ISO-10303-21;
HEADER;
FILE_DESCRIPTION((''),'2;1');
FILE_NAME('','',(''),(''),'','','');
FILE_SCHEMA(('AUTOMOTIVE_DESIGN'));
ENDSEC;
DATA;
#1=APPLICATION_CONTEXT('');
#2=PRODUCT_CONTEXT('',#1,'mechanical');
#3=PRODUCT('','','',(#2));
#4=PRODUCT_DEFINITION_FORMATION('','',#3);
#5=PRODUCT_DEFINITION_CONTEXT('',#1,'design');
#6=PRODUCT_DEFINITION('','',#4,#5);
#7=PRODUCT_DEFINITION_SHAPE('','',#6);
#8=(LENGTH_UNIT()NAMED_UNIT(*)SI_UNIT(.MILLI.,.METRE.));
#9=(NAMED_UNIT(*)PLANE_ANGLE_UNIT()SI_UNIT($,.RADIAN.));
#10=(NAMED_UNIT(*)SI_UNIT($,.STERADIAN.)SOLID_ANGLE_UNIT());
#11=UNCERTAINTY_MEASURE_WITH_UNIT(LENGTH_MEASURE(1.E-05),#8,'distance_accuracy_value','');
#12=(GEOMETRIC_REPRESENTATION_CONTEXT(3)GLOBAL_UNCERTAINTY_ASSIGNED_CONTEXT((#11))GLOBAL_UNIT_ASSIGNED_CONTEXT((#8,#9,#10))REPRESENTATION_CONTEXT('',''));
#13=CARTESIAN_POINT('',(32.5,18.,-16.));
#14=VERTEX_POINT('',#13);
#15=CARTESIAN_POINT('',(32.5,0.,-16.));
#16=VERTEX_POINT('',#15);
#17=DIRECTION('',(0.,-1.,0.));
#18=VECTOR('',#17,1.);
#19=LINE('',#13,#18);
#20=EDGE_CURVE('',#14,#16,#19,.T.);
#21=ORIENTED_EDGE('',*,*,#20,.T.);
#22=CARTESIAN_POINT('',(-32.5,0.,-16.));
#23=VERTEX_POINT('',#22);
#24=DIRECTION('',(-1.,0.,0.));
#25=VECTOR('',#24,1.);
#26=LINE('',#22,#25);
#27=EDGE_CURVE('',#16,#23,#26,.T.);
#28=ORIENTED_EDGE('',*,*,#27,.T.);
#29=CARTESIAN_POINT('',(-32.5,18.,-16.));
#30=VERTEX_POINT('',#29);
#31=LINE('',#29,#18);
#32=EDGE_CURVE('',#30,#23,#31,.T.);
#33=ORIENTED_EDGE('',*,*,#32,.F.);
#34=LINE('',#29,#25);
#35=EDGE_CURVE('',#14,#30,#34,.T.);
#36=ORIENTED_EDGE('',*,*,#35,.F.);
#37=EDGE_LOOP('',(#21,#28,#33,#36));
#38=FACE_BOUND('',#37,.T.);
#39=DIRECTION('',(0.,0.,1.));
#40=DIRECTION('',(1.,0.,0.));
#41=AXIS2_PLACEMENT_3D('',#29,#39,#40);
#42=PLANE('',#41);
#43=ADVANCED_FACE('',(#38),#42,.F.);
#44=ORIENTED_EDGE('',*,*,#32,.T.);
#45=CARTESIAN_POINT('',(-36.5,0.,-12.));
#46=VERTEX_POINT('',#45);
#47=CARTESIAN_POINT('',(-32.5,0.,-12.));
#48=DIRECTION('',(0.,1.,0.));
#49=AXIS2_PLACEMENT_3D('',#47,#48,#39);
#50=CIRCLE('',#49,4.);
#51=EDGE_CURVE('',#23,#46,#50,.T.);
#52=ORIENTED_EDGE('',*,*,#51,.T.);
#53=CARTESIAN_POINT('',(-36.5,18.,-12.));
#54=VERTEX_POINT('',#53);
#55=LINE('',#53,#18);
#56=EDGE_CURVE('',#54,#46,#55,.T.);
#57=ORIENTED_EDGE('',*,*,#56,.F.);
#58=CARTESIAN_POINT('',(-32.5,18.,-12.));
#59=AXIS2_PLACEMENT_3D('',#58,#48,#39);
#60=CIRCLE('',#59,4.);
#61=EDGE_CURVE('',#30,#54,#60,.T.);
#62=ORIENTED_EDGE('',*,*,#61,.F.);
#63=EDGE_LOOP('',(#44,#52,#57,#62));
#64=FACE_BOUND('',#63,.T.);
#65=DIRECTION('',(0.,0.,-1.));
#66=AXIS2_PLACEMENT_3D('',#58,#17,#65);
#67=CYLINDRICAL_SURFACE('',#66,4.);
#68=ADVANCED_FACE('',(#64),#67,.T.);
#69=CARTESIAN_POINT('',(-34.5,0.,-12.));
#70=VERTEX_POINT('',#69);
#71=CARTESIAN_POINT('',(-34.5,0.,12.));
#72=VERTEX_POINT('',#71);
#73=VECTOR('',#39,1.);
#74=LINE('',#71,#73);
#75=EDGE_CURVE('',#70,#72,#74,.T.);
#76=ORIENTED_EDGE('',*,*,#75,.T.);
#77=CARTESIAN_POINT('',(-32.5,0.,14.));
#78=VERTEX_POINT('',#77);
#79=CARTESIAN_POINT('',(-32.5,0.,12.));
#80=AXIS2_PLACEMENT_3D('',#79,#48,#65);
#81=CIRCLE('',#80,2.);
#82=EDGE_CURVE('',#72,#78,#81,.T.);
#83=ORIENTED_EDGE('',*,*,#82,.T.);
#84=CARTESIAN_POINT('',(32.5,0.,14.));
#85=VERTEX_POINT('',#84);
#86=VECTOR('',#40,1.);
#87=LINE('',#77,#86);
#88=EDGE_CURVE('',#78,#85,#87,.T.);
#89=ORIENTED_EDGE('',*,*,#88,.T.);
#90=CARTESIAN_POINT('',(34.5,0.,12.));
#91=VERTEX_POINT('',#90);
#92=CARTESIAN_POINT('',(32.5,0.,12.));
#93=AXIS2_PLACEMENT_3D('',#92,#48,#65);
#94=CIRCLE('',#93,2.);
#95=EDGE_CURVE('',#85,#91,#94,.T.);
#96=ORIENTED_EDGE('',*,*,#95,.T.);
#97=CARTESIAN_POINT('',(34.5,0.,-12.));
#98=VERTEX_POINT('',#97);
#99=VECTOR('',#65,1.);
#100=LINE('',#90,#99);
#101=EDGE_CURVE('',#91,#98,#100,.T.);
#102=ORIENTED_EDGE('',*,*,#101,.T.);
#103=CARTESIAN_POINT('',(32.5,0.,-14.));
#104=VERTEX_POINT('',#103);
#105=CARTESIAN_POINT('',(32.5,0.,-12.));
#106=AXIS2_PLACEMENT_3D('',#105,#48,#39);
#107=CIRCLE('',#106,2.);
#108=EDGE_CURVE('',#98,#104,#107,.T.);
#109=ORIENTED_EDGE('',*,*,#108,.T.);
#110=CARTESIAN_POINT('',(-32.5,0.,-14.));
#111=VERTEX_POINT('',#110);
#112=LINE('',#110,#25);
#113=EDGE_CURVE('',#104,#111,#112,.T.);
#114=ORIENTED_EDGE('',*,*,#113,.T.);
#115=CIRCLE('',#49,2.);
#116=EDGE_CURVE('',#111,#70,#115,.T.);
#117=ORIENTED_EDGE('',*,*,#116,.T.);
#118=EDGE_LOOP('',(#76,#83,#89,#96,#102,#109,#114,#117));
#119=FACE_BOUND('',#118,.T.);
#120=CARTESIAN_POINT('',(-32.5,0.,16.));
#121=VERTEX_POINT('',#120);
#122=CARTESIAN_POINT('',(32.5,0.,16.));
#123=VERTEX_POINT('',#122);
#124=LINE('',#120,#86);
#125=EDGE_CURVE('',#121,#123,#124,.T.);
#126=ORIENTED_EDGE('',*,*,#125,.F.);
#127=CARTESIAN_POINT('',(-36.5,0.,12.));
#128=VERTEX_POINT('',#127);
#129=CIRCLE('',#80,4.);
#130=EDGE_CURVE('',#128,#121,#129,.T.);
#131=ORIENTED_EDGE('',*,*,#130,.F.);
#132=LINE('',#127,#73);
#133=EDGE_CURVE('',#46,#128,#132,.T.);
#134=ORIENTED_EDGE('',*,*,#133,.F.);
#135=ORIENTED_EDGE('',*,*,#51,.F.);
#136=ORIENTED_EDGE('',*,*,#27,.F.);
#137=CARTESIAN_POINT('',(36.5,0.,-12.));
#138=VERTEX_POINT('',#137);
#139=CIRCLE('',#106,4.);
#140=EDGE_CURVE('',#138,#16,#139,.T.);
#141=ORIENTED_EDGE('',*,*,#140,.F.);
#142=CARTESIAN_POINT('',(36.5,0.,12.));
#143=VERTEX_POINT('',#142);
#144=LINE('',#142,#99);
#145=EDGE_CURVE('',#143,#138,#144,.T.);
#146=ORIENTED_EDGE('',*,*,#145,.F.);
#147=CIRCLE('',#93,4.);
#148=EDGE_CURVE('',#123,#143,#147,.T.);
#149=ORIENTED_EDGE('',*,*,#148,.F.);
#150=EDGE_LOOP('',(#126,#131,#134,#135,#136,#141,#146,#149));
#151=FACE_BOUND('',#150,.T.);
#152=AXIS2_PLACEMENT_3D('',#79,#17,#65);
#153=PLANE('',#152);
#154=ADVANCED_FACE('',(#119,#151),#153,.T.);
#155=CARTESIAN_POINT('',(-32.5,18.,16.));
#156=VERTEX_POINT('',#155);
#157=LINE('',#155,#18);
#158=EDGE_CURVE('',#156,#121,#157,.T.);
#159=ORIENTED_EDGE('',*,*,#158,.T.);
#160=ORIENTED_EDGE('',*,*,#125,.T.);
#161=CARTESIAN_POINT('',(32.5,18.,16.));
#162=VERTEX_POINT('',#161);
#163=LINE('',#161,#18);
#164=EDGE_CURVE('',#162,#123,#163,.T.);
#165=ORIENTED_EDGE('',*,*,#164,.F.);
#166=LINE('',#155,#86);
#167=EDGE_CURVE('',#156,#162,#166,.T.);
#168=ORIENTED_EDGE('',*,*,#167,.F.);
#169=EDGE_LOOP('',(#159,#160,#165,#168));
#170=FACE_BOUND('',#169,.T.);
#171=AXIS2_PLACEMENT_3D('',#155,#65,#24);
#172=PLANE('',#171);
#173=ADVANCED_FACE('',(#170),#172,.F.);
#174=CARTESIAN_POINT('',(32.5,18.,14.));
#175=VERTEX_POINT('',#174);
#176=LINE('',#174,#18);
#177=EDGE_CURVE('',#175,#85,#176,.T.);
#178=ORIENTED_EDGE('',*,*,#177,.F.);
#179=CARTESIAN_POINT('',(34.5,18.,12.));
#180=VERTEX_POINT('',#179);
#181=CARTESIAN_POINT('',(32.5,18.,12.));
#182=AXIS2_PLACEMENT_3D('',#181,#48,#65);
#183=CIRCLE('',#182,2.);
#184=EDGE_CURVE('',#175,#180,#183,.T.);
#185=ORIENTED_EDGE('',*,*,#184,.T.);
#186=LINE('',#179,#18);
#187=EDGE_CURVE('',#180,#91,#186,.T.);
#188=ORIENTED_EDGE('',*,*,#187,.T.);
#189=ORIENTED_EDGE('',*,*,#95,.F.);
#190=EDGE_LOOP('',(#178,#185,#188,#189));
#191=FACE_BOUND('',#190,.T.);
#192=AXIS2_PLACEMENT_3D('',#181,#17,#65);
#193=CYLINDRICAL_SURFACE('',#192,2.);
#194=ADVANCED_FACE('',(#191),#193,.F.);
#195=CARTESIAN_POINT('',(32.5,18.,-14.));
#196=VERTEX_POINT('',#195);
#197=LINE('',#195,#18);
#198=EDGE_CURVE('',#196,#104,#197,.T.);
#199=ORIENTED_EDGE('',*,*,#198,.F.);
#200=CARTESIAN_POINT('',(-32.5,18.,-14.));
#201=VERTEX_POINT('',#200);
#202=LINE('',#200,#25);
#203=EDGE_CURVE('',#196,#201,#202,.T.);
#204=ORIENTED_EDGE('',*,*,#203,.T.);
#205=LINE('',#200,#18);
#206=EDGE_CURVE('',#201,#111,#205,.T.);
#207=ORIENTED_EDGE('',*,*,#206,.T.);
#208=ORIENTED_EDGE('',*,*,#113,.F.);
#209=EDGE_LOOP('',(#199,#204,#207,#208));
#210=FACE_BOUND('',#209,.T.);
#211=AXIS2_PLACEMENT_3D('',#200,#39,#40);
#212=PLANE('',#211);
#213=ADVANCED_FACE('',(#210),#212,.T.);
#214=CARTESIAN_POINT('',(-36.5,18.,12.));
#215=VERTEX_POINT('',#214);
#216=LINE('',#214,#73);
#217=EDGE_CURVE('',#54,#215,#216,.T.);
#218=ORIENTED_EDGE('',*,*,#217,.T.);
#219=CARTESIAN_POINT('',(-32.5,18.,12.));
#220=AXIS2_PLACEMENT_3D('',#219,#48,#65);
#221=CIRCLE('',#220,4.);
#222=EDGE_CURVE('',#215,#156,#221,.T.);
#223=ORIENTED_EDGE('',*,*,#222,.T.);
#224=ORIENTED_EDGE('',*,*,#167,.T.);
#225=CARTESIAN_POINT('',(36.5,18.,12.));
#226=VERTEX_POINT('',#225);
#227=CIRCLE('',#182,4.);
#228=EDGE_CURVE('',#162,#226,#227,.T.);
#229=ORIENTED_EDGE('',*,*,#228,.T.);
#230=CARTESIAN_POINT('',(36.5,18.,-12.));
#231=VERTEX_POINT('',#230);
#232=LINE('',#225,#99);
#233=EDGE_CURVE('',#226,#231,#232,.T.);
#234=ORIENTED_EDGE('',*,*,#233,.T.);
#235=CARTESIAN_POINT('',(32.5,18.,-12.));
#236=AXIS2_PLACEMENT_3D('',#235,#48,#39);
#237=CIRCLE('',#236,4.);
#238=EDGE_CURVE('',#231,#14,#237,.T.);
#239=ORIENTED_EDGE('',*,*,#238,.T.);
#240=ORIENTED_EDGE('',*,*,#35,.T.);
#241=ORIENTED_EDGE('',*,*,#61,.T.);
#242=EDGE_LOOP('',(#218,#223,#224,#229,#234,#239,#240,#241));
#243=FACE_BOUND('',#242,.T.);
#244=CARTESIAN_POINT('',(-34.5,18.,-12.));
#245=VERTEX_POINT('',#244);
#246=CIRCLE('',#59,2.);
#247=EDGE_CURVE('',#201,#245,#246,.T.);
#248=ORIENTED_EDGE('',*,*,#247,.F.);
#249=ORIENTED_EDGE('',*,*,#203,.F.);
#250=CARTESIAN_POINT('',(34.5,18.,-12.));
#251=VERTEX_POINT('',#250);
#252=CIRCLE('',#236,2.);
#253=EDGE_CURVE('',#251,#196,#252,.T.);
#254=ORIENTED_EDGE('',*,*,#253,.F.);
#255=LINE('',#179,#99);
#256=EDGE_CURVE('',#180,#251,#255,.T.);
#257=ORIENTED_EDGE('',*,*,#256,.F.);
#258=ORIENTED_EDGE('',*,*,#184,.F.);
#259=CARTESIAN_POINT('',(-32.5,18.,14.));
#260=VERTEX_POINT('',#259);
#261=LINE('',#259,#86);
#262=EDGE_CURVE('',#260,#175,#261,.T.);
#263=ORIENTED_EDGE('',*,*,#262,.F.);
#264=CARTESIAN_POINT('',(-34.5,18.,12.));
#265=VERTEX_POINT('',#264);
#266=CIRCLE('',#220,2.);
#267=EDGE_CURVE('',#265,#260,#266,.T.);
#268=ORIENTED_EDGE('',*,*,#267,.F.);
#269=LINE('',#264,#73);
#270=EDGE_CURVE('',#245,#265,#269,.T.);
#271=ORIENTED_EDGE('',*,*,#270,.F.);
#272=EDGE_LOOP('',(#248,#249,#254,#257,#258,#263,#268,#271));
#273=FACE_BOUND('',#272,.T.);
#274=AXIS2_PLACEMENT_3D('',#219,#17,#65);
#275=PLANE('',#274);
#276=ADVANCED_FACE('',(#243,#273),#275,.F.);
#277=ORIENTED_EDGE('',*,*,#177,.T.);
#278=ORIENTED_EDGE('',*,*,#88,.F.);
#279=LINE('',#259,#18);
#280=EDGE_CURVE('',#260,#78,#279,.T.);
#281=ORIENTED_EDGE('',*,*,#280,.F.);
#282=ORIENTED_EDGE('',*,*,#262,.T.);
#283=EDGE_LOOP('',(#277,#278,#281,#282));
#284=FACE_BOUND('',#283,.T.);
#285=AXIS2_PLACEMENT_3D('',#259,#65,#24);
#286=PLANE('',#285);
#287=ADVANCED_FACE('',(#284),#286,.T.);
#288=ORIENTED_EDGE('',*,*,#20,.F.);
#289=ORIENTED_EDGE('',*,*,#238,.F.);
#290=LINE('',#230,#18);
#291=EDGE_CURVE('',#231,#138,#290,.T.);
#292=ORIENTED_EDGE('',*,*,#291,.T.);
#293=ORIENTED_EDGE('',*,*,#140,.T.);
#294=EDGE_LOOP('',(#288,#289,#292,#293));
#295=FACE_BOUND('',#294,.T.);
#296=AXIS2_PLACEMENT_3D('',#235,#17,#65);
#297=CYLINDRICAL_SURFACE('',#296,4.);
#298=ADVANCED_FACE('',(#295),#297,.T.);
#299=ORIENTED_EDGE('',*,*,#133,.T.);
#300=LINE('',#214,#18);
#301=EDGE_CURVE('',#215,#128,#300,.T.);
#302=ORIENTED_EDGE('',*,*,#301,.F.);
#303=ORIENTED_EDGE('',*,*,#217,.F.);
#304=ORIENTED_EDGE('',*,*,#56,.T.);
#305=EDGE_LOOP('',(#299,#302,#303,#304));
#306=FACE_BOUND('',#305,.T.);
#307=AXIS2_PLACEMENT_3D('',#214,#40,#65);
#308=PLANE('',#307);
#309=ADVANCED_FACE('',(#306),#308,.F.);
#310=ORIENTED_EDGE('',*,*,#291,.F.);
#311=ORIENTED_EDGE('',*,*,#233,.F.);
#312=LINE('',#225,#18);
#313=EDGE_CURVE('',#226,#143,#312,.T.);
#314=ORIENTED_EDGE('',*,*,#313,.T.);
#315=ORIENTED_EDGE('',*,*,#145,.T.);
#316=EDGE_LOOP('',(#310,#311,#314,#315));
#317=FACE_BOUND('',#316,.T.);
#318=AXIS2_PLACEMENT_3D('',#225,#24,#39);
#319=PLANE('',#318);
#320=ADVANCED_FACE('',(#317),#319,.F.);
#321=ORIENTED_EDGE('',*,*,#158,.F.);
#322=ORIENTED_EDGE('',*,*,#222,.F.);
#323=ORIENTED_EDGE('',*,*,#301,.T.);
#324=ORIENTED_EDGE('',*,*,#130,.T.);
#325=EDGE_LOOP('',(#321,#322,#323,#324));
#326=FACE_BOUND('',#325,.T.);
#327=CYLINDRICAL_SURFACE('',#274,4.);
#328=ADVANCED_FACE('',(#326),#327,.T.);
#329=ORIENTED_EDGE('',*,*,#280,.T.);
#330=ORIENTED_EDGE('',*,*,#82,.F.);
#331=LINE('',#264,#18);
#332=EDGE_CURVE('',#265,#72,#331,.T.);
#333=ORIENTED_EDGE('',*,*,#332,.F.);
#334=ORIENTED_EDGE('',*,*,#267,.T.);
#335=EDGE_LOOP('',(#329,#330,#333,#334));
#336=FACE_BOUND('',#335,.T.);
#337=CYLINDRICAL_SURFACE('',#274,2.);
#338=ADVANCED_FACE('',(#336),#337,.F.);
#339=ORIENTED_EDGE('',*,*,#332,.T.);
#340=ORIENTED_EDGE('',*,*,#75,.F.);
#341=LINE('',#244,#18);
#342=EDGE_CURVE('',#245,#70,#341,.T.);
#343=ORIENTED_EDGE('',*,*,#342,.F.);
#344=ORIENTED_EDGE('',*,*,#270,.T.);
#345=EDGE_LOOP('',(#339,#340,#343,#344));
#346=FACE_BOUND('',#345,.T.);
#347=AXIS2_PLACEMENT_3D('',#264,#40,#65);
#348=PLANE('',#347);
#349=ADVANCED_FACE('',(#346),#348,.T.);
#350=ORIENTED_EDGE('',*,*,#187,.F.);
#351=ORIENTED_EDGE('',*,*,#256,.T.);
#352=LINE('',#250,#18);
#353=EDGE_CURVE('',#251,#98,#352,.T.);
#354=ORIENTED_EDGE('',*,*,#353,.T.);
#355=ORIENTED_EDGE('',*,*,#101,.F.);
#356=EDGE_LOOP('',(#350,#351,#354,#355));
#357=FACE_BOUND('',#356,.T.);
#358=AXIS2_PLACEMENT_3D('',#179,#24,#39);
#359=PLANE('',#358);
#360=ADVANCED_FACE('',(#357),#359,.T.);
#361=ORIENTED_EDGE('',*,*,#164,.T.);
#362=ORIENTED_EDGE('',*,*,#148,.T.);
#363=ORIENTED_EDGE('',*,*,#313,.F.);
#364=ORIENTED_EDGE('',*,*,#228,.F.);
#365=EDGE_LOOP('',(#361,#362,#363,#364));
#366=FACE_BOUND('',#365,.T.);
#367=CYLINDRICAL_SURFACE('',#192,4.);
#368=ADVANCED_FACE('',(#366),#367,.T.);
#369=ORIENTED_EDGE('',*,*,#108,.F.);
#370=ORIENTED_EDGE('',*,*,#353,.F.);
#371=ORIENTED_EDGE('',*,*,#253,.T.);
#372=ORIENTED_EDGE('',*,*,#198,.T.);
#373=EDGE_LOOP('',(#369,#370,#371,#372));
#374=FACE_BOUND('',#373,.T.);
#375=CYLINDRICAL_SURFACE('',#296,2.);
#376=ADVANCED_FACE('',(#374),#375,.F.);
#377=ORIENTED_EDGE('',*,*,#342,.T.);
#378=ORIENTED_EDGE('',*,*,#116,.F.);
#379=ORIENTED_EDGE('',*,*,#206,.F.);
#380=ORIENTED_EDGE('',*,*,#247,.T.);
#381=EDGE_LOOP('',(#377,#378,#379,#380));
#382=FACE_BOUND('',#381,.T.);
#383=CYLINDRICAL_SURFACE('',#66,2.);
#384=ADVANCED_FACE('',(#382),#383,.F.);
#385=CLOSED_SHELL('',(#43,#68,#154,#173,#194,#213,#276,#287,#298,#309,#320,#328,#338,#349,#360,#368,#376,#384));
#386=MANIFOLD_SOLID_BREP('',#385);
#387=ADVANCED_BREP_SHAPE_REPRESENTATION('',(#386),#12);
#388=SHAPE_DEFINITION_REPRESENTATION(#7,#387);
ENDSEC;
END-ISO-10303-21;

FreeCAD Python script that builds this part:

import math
import FreeCAD as App
import Part
import Sketcher

doc = App.newDocument("Part")
body = doc.addObject("PartDesign::Body", "Body")

# Sketch on XZ plane
sketch1 = body.newObject("Sketcher::SketchObject", "Sketch")
sketch1.AttachmentSupport = (doc.getObject("XZ_Plane"), [""])
sketch1.MapMode = "FlatFace"
sketch1.addGeometry([
    Part.LineSegment(App.Vector(-36.5, -12, 0), App.Vector(-36.5, 12, 0)),  # 0
    Part.ArcOfCircle(Part.Circle(App.Vector(-32.5, 12, 0), App.Vector(0, 0, 1), 4), math.radians(90), math.radians(180)),  # 1
    Part.LineSegment(App.Vector(-32.5, 16, 0), App.Vector(32.5, 16, 0)),  # 2
    Part.ArcOfCircle(Part.Circle(App.Vector(32.5, 12, 0), App.Vector(0, 0, 1), 4), math.radians(0), math.radians(90)),  # 3
    Part.LineSegment(App.Vector(36.5, 12, 0), App.Vector(36.5, -12, 0)),  # 4
    Part.ArcOfCircle(Part.Circle(App.Vector(32.5, -12, 0), App.Vector(0, 0, 1), 4), math.radians(-90), math.radians(0)),  # 5
    Part.LineSegment(App.Vector(32.5, -16, 0), App.Vector(-32.5, -16, 0)),  # 6
    Part.ArcOfCircle(Part.Circle(App.Vector(-32.5, -12, 0), App.Vector(0, 0, 1), 4), math.radians(180), math.radians(270)),  # 7
    Part.ArcOfCircle(Part.Circle(App.Vector(-32.5, 12, 0), App.Vector(0, 0, 1), 2), math.radians(90), math.radians(180)),  # 8
    Part.LineSegment(App.Vector(-34.5, 12, 0), App.Vector(-34.5, -12, 0)),  # 9
    Part.ArcOfCircle(Part.Circle(App.Vector(-32.5, -12, 0), App.Vector(0, 0, 1), 2), math.radians(-180), math.radians(-90)),  # 10
    Part.LineSegment(App.Vector(-32.5, -14, 0), App.Vector(32.5, -14, 0)),  # 11
    Part.ArcOfCircle(Part.Circle(App.Vector(32.5, -12, 0), App.Vector(0, 0, 1), 2), math.radians(-90), math.radians(0)),  # 12
    Part.LineSegment(App.Vector(34.5, -12, 0), App.Vector(34.5, 12, 0)),  # 13
    Part.ArcOfCircle(Part.Circle(App.Vector(32.5, 12, 0), App.Vector(0, 0, 1), 2), math.radians(0), math.radians(90)),  # 14
    Part.LineSegment(App.Vector(32.5, 14, 0), App.Vector(-32.5, 14, 0)),  # 15
], False)
sketch1.addConstraint([
    Sketcher.Constraint("Tangent", 0, 2, 1, 2),
    Sketcher.Constraint("Tangent", 1, 1, 2, 1),
    Sketcher.Constraint("Tangent", 2, 2, 3, 2),
    Sketcher.Constraint("Tangent", 3, 1, 4, 1),
    Sketcher.Constraint("Tangent", 4, 2, 5, 2),
    Sketcher.Constraint("Tangent", 5, 1, 6, 1),
    Sketcher.Constraint("Tangent", 6, 2, 7, 2),
    Sketcher.Constraint("Tangent", 7, 1, 0, 1),
    Sketcher.Constraint("Tangent", 8, 2, 9, 1),
    Sketcher.Constraint("Tangent", 9, 2, 10, 1),
    Sketcher.Constraint("Tangent", 10, 2, 11, 1),
    Sketcher.Constraint("Tangent", 11, 2, 12, 1),
    Sketcher.Constraint("Tangent", 12, 2, 13, 1),
    Sketcher.Constraint("Tangent", 13, 2, 14, 1),
    Sketcher.Constraint("Tangent", 14, 2, 15, 1),
    Sketcher.Constraint("Tangent", 15, 2, 8, 1),
    Sketcher.Constraint("Vertical", 0),
    Sketcher.Constraint("Horizontal", 2),
    Sketcher.Constraint("Vertical", 4),
    Sketcher.Constraint("Horizontal", 6),
    Sketcher.Constraint("Vertical", 9),
    Sketcher.Constraint("Horizontal", 11),
    Sketcher.Constraint("Vertical", 13),
    Sketcher.Constraint("Horizontal", 15),
    Sketcher.Constraint("Coincident", 8, 3, 1, 3),
    Sketcher.Constraint("Coincident", 10, 3, 7, 3),
    Sketcher.Constraint("Coincident", 12, 3, 5, 3),
    Sketcher.Constraint("Equal", 1, 3),
    Sketcher.Constraint("Equal", 3, 5),
    Sketcher.Constraint("Equal", 5, 7),
    Sketcher.Constraint("Equal", 12, 14),
    Sketcher.Constraint("Symmetric", 1, 3, 5, 3, -1, 1),
    Sketcher.Constraint("Radius", 1, 4.0),
    Sketcher.Constraint("Radius", 8, 2.0),
    Sketcher.Constraint("DistanceX", 2, 1, 2, 2, 65.0),
    Sketcher.Constraint("DistanceY", 0, 1, 0, 2, 24.0),
])
pad1 = body.newObject("PartDesign::Pad", "Pad")
pad1.Profile = sketch1
pad1.Length = 18
pad1.Reversed = True

doc.recompute()
